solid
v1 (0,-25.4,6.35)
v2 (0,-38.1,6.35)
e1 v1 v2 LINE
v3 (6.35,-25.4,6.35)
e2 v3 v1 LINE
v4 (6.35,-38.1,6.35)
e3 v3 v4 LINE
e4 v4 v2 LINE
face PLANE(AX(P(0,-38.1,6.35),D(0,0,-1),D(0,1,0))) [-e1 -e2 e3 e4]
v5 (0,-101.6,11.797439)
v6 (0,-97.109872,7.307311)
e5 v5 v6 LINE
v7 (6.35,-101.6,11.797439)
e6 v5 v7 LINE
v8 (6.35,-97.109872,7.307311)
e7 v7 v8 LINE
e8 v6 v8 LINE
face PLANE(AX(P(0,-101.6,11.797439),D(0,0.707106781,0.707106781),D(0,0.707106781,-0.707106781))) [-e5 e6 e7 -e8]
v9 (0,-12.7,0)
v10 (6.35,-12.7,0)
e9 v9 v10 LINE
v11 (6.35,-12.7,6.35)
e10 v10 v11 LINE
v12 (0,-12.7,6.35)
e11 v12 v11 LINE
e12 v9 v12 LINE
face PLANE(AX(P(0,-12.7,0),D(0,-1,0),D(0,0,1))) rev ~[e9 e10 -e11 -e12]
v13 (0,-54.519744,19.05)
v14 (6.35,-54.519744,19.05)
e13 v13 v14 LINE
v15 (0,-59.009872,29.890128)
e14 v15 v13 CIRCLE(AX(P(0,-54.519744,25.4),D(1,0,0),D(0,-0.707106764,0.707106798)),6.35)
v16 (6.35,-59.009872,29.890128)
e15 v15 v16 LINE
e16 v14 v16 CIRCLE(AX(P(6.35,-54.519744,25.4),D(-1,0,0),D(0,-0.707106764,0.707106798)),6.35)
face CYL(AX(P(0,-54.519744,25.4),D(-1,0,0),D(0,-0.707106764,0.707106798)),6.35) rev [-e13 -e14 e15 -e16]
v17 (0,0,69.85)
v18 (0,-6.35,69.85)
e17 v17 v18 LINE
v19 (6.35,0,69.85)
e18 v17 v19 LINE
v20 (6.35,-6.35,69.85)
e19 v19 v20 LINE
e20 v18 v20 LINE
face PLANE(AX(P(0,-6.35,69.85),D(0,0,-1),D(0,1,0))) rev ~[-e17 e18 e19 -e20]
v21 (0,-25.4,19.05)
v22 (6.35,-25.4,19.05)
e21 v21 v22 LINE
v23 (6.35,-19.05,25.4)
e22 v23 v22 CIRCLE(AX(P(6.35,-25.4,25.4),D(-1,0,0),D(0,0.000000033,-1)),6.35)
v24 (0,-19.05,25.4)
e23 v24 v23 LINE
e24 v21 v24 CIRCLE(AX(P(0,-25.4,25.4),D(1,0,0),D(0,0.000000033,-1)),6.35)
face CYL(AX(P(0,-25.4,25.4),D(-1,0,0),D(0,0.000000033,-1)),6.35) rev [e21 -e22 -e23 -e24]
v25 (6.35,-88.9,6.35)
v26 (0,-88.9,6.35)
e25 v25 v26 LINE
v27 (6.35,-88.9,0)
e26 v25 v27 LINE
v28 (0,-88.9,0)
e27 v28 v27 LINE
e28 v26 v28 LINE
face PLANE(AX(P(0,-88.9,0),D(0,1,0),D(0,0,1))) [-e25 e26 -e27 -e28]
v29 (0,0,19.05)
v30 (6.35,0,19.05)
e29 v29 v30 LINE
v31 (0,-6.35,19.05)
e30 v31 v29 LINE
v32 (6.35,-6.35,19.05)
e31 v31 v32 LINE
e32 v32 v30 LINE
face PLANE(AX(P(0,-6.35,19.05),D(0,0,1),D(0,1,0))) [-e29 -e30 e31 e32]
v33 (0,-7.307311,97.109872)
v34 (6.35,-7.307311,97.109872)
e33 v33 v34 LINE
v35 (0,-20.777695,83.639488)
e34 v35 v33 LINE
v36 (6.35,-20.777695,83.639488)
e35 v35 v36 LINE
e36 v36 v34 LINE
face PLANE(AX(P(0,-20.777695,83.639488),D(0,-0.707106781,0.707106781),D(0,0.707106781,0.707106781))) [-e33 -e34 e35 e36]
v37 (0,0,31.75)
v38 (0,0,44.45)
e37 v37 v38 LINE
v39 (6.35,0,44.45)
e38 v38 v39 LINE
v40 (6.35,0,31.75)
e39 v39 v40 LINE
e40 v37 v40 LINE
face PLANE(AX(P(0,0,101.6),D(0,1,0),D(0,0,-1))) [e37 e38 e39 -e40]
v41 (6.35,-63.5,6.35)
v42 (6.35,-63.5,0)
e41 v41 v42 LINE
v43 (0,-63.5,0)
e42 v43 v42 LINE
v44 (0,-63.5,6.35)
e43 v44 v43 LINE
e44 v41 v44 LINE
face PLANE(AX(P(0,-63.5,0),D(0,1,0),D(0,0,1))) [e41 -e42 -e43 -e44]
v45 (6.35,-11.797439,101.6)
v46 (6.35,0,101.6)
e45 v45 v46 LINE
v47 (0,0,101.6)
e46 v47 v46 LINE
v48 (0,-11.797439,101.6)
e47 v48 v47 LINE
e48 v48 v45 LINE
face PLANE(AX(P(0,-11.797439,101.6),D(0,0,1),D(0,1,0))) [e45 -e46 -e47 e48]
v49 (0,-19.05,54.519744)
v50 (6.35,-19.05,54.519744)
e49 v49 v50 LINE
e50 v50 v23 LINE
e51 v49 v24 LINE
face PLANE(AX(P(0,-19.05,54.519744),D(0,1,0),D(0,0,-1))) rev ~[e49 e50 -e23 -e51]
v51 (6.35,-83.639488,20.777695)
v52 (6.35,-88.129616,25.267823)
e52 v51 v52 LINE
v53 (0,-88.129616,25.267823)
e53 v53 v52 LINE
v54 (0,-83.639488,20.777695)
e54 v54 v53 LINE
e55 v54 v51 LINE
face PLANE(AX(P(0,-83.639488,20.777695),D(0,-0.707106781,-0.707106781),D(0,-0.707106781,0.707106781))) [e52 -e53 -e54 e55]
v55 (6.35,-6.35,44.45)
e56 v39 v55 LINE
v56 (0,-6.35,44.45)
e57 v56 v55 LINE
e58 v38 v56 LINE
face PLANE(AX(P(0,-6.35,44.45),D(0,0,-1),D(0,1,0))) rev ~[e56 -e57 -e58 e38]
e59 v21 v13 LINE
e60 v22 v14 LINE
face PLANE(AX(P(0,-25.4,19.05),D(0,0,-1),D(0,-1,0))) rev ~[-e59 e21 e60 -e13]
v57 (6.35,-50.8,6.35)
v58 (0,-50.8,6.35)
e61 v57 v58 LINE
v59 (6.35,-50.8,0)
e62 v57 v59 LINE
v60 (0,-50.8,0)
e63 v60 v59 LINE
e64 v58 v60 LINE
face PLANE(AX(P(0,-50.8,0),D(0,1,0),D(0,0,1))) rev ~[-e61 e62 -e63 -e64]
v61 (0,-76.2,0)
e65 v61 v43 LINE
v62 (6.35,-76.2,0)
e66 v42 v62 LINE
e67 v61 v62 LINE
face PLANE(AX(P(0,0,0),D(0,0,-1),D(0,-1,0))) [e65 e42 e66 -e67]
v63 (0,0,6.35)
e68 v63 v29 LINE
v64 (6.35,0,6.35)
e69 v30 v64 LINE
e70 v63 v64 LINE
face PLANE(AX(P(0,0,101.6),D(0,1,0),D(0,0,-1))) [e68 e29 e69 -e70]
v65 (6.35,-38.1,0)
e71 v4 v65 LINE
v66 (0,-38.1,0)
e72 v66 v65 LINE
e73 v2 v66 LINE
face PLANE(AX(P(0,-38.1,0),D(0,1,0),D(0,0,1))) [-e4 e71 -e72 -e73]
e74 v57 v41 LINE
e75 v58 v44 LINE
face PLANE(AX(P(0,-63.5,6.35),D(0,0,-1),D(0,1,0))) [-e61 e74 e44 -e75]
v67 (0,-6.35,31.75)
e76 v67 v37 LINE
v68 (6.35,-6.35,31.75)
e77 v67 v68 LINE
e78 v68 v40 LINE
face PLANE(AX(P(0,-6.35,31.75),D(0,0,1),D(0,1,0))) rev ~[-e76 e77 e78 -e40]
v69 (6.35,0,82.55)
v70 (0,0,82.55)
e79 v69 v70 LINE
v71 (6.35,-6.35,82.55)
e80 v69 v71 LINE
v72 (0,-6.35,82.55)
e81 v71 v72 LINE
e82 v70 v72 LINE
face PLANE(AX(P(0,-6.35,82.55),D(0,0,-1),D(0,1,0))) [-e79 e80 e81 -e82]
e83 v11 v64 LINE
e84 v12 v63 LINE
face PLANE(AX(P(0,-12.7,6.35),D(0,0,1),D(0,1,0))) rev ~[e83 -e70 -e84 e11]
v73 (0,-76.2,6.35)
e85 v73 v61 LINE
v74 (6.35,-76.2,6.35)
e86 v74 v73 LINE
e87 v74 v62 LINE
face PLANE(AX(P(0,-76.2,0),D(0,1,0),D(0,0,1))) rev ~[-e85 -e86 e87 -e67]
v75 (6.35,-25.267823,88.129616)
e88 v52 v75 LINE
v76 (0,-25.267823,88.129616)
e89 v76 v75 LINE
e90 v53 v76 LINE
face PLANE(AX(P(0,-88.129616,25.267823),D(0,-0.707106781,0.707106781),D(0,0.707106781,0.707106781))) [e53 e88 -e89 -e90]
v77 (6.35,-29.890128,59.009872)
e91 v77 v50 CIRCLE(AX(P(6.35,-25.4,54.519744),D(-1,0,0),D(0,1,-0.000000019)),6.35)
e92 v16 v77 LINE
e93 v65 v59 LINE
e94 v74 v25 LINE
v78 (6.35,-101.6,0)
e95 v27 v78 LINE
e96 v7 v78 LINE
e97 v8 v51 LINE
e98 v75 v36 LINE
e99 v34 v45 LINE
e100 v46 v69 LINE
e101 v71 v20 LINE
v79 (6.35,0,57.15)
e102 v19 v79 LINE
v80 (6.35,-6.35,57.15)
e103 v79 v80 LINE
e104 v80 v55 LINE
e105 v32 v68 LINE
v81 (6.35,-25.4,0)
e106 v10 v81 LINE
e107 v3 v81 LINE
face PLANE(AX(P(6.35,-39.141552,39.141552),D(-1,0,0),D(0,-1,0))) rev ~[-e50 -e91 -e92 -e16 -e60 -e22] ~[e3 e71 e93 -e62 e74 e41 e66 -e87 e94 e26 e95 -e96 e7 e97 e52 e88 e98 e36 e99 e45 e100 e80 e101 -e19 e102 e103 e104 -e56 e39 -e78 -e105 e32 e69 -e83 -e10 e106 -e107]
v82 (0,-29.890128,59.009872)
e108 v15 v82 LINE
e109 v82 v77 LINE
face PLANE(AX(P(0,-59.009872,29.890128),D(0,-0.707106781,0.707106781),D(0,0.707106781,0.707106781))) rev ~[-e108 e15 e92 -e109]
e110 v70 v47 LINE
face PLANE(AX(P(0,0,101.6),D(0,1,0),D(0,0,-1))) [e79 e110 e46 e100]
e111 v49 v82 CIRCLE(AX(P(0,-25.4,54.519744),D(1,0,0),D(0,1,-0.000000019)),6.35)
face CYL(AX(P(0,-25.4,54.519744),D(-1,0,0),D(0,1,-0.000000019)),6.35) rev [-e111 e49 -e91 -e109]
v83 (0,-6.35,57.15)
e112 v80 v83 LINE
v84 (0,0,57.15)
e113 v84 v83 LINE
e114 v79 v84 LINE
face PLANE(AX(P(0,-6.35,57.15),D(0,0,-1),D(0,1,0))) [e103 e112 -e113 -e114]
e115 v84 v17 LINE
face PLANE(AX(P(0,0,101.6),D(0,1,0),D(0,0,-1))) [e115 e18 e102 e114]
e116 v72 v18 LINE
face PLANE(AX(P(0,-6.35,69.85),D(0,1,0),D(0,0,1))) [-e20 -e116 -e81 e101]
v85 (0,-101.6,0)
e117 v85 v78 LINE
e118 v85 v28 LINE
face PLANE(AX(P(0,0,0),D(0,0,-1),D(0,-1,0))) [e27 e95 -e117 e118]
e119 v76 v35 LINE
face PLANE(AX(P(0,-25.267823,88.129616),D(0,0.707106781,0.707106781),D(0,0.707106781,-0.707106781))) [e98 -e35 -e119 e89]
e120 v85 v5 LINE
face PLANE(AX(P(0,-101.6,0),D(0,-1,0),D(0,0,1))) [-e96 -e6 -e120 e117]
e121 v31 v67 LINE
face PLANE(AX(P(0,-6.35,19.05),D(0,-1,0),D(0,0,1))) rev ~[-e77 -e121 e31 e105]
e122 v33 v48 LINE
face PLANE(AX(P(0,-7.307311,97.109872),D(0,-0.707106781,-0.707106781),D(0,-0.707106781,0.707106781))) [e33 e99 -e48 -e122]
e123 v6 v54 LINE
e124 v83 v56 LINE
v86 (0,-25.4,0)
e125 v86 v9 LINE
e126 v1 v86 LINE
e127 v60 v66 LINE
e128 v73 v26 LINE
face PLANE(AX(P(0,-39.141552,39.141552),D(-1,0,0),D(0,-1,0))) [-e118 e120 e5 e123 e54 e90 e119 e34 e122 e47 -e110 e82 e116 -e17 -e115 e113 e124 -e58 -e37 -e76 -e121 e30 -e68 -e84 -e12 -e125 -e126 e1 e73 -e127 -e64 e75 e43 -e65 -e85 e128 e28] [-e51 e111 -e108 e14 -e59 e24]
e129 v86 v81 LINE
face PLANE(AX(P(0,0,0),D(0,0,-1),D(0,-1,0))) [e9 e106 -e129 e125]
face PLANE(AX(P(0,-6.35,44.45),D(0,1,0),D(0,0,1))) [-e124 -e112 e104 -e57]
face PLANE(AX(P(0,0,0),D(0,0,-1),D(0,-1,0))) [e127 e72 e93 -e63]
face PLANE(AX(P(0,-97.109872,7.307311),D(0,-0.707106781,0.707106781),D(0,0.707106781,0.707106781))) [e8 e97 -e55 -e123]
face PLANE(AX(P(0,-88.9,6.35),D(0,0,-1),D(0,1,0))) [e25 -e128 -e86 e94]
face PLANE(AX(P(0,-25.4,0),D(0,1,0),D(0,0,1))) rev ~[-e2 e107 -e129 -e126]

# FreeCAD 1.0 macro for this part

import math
import FreeCAD as App
import Part
import Sketcher

V = App.Vector
Q = App.Units.Quantity


def add_polygon(sketch, points):
    """Adds a closed chain of lines whose ends are joined by coincident constraints."""
    first, n = sketch.GeometryCount, len(points)
    for a, b in zip(points, points[1:] + points[:1]):
        sketch.addGeometry(Part.LineSegment(App.Vector(*a, 0), App.Vector(*b, 0)), False)
    for i in range(n):
        sketch.addConstraint(Sketcher.Constraint("Coincident", first + i, 2, first + (i + 1) % n, 1))

doc = App.newDocument("Part")
body = doc.addObject("PartDesign::Body", "Body")

sketch1 = body.newObject("Sketcher::SketchObject", "Sketch")
sketch1.AttachmentSupport = (doc.getObject("YZ_Plane"), [""])
sketch1.MapMode = "FlatFace"
add_polygon(sketch1, [(-25.267823, 88.129616), (-88.129616, 25.267823), (-83.639488, 20.777695), (-97.109872, 7.307311), (-101.6, 11.797439), (-101.6, 0), (0, 0), (0, 101.6), (-11.797439, 101.6), (-7.307311, 97.109872), (-20.777695, 83.639488)])
sketch1.addConstraint([
    Sketcher.Constraint("Vertical", 4),
    Sketcher.Constraint("Horizontal", 5),
    Sketcher.Constraint("Vertical", 6),
    Sketcher.Constraint("Horizontal", 7),
    Sketcher.Constraint("Coincident", 5, 2, -1, 1),
    Sketcher.Constraint("Perpendicular", 0, 1),
    Sketcher.Constraint("Perpendicular", 1, 2),
    Sketcher.Constraint("Perpendicular", 2, 3),
    Sketcher.Constraint("Parallel", 3, 8),
    Sketcher.Constraint("Perpendicular", 8, 9),
    Sketcher.Constraint("Perpendicular", 9, 10),
    Sketcher.Constraint("Equal", 7, 4),
    Sketcher.Constraint("Equal", 5, 6),
    Sketcher.Constraint("Equal", 1, 3),
    Sketcher.Constraint("Equal", 3, 8),
    Sketcher.Constraint("Equal", 2, 9),
    Sketcher.Constraint("Equal", 8, 10),
    Sketcher.Constraint("DistanceX", 5, 1, 5, 2, Q("4 in")),
    Sketcher.Constraint("Distance", 0, Q("3.5 in")),
    Sketcher.Constraint("Distance", 1, Q("0.25 in")),
    Sketcher.Constraint("Distance", 2, Q("0.75 in")),
])
pad1 = body.newObject("PartDesign::Pad", "Pad")
pad1.Profile = sketch1
pad1.Length = Q("0.25 in")

sketch2 = body.newObject("Sketcher::SketchObject", "Sketch001")
sketch2.AttachmentSupport = (doc.getObject("YZ_Plane"), [""])
sketch2.MapMode = "FlatFace"
add_polygon(sketch2, [(-12.7, 6.35), (-12.7, 0), (0, 0), (0, 6.35)])
sketch2.addConstraint([
    Sketcher.Constraint("Vertical", 0),
    Sketcher.Constraint("Horizontal", 1),
    Sketcher.Constraint("Vertical", 2),
    Sketcher.Constraint("Horizontal", 3),
    Sketcher.Constraint("Coincident", 1, 2, -1, 1),
    Sketcher.Constraint("DistanceX", 1, 1, 1, 2, Q("0.5 in")),
    Sketcher.Constraint("DistanceY", 0, 2, 0, 1, Q("0.25 in")),
])
pocket1 = body.newObject("PartDesign::Pocket", "Pocket")
pocket1.Profile = sketch2
pocket1.Type = "ThroughAll"
pocket1.Midplane = True
doc.recompute()

linearpattern = body.newObject("PartDesign::LinearPattern", "LinearPattern")
linearpattern.Originals = [pocket1]
linearpattern.Direction = (doc.getObject("Y_Axis"), [""])
linearpattern.Mode = "offset"
linearpattern.Offset = Q("1 in")
linearpattern.Occurrences = 7
linearpattern.Reversed = True
body.Tip = linearpattern

sketch3 = body.newObject("Sketcher::SketchObject", "Sketch002")
sketch3.AttachmentSupport = (doc.getObject("YZ_Plane"), [""])
sketch3.MapMode = "FlatFace"
add_polygon(sketch3, [(-6.35, 31.75), (-6.35, 19.05), (0, 19.05), (0, 31.75)])
sketch3.addConstraint([
    Sketcher.Constraint("Vertical", 0),
    Sketcher.Constraint("Horizontal", 1),
    Sketcher.Constraint("Vertical", 2),
    Sketcher.Constraint("Horizontal", 3),
    Sketcher.Constraint("PointOnObject", 1, 2, -2),
    Sketcher.Constraint("DistanceY", 0, 2, 0, 1, Q("0.5 in")),
    Sketcher.Constraint("DistanceX", 1, 1, 1, 2, Q("0.25 in")),
    Sketcher.Constraint("DistanceY", -1, 1, 0, 2, Q("0.75 in")),
])
pocket2 = body.newObject("PartDesign::Pocket", "Pocket001")
pocket2.Profile = sketch3
pocket2.Type = "ThroughAll"
pocket2.Midplane = True
doc.recompute()

linearpattern2 = body.newObject("PartDesign::LinearPattern", "LinearPattern001")
linearpattern2.Originals = [pocket2]
linearpattern2.Direction = (doc.getObject("Z_Axis"), [""])
linearpattern2.Mode = "offset"
linearpattern2.Offset = Q("1 in")
linearpattern2.Occurrences = 3
body.Tip = linearpattern2

sketch4 = body.newObject("Sketcher::SketchObject", "Sketch003")
sketch4.AttachmentSupport = (doc.getObject("YZ_Plane"), [""])
sketch4.MapMode = "FlatFace"
sketch4.addGeometry([
    Part.LineSegment(V(-19.05, 25.4, 0), V(-19.05, 54.519744, 0)),
    Part.ArcOfCircle(Part.Circle(V(-25.4, 54.519744, 0), V(0, 0, 1), 6.35), math.radians(-0.000001), math.radians(135.000001)),
    Part.LineSegment(V(-29.890128, 59.009872, 0), V(-59.009872, 29.890128, 0)),
    Part.ArcOfCircle(Part.Circle(V(-54.519744, 25.4, 0), V(0, 0, 1), 6.35), math.radians(134.999999), math.radians(270.000001)),
    Part.LineSegment(V(-54.519744, 19.05, 0), V(-25.4, 19.05, 0)),
    Part.ArcOfCircle(Part.Circle(V(-25.4, 25.4, 0), V(0, 0, 1), 6.35), math.radians(-89.999998), math.radians(-0.000002)),
], False)
sketch4.addConstraint([
    Sketcher.Constraint("Tangent", 0, 2, 1, 1),
    Sketcher.Constraint("Tangent", 1, 2, 2, 1),
    Sketcher.Constraint("Tangent", 2, 2, 3, 1),
    Sketcher.Constraint("Tangent", 3, 2, 4, 1),
    Sketcher.Constraint("Tangent", 4, 2, 5, 1),
    Sketcher.Constraint("Tangent", 5, 2, 0, 1),
    Sketcher.Constraint("Vertical", 0),
    Sketcher.Constraint("Horizontal", 4),
    Sketcher.Constraint("Equal", 1, 3),
    Sketcher.Constraint("Equal", 3, 5),
    Sketcher.Constraint("Equal", 4, 0),
    Sketcher.Constraint("Radius", 1, Q("0.25 in")),
    Sketcher.Constraint("DistanceX", 1, 3, -1, 1, Q("1 in")),
    Sketcher.Constraint("DistanceY", -1, 1, 3, 3, Q("1 in")),
    Sketcher.Constraint("DistanceX", 4, 1, 4, 2, 29.119744),
])
pocket3 = body.newObject("PartDesign::Pocket", "Pocket002")
pocket3.Profile = sketch4
pocket3.Type = "ThroughAll"
pocket3.Midplane = True

doc.recompute()
